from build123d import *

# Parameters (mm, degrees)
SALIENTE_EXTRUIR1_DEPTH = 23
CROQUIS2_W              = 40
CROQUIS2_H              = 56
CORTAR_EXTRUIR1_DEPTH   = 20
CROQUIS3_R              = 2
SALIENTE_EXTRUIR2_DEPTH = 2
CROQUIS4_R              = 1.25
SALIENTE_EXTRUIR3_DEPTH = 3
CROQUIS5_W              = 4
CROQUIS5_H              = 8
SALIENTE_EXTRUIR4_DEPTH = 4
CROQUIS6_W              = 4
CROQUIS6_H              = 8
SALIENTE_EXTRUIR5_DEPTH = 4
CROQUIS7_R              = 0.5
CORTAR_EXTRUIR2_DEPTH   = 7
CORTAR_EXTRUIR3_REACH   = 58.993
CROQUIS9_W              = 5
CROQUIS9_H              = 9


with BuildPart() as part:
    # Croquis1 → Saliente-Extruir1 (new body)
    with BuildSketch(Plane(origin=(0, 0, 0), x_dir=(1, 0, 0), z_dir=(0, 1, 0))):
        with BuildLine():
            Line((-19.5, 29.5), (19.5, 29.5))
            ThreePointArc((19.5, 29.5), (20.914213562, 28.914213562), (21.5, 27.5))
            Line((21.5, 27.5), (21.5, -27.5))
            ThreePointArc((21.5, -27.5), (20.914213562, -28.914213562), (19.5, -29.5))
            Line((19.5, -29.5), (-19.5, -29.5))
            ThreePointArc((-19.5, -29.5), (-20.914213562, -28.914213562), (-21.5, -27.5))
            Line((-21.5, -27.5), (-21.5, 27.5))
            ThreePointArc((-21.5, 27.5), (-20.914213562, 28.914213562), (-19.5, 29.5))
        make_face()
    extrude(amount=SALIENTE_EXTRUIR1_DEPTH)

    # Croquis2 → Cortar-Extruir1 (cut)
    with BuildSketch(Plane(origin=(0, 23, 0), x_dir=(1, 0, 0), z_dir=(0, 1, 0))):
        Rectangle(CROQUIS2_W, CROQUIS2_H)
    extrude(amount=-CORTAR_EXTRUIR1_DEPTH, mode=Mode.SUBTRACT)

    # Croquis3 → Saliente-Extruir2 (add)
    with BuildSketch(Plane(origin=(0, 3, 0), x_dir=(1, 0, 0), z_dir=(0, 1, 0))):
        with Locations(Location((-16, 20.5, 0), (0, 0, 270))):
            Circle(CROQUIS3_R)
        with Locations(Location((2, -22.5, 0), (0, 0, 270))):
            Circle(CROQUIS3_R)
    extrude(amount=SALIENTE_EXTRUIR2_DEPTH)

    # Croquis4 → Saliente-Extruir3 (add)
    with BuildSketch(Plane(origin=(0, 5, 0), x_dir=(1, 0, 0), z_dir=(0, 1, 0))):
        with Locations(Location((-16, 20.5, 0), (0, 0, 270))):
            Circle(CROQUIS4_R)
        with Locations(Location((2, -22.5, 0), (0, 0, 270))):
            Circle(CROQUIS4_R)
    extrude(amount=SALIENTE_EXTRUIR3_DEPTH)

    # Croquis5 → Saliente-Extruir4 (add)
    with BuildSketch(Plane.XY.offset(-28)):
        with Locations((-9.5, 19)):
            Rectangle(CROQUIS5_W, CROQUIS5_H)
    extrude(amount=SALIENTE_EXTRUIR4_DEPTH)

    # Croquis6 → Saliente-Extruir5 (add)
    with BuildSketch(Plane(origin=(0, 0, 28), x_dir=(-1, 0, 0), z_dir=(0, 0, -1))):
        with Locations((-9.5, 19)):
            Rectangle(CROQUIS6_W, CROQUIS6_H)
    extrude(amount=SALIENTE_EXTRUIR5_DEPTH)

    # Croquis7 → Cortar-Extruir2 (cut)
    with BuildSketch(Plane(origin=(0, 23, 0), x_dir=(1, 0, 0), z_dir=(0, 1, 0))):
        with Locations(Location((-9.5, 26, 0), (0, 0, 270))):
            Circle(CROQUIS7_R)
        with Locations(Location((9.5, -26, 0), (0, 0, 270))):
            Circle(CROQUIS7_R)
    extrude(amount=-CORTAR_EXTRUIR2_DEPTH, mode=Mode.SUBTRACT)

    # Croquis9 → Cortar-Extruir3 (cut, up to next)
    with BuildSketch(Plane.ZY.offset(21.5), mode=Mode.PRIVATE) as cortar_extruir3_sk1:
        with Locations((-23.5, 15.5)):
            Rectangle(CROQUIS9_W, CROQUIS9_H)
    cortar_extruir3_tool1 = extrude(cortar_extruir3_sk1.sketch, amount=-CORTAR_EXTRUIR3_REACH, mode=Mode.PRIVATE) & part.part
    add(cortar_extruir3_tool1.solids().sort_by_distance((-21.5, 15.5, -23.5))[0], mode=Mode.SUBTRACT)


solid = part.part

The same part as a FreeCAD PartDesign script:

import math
import FreeCAD as App
import Part
import Sketcher
Q = App.Units.Quantity


def add_polygon(sketch, points):
    """Adds a closed chain of lines whose ends are joined by coincident constraints."""
    first, n = sketch.GeometryCount, len(points)
    for a, b in zip(points, points[1:] + points[:1]):
        sketch.addGeometry(Part.LineSegment(App.Vector(*a, 0), App.Vector(*b, 0)), False)
    for i in range(n):
        sketch.addConstraint(Sketcher.Constraint("Coincident", first + i, 2, first + (i + 1) % n, 1))

doc = App.newDocument("Part")
body = doc.addObject("PartDesign::Body", "Body")

sketch1 = body.newObject("Sketcher::SketchObject", "Sketch")
sketch1.AttachmentSupport = (doc.getObject("XZ_Plane"), [""])
sketch1.MapMode = "FlatFace"
sketch1.addGeometry([
    Part.LineSegment(App.Vector(19.5, -29.5, 0), App.Vector(-19.5, -29.5, 0)),
    Part.ArcOfCircle(Part.Circle(App.Vector(-19.5, -27.5, 0), App.Vector(0, 0, 1), 2), math.radians(-180), math.radians(-90)),
    Part.LineSegment(App.Vector(-21.5, -27.5, 0), App.Vector(-21.5, 27.5, 0)),
    Part.ArcOfCircle(Part.Circle(App.Vector(-19.5, 27.5, 0), App.Vector(0, 0, 1), 2), math.radians(90), math.radians(180)),
    Part.LineSegment(App.Vector(-19.5, 29.5, 0), App.Vector(19.5, 29.5, 0)),
    Part.ArcOfCircle(Part.Circle(App.Vector(19.5, 27.5, 0), App.Vector(0, 0, 1), 2), math.radians(0), math.radians(90)),
    Part.LineSegment(App.Vector(21.5, 27.5, 0), App.Vector(21.5, -27.5, 0)),
    Part.ArcOfCircle(Part.Circle(App.Vector(19.5, -27.5, 0), App.Vector(0, 0, 1), 2), math.radians(-90), math.radians(0)),
], False)
sketch1.addConstraint([
    Sketcher.Constraint("Tangent", 0, 2, 1, 2),
    Sketcher.Constraint("Tangent", 1, 1, 2, 1),
    Sketcher.Constraint("Tangent", 2, 2, 3, 2),
    Sketcher.Constraint("Tangent", 3, 1, 4, 1),
    Sketcher.Constraint("Tangent", 4, 2, 5, 2),
    Sketcher.Constraint("Tangent", 5, 1, 6, 1),
    Sketcher.Constraint("Tangent", 6, 2, 7, 2),
    Sketcher.Constraint("Tangent", 7, 1, 0, 1),
    Sketcher.Constraint("Horizontal", 0),
    Sketcher.Constraint("Vertical", 2),
    Sketcher.Constraint("Horizontal", 4),
    Sketcher.Constraint("Vertical", 6),
    Sketcher.Constraint("Equal", 1, 3),
    Sketcher.Constraint("Equal", 3, 5),
    Sketcher.Constraint("Equal", 5, 7),
    Sketcher.Constraint("Symmetric", 1, 3, 5, 3, -1, 1),
    Sketcher.Constraint("Radius", 1, Q("2 mm")),
    Sketcher.Constraint("DistanceX", 0, 2, 0, 1, Q("39 mm")),
    Sketcher.Constraint("DistanceY", 2, 1, 2, 2, Q("55 mm")),
])
pad1 = body.newObject("PartDesign::Pad", "Pad")
pad1.Profile = sketch1
pad1.Length = 23
pad1.Reversed = True

sketch2 = body.newObject("Sketcher::SketchObject", "Sketch001")
sketch2.AttachmentSupport = (doc.getObject("XZ_Plane"), [""])
sketch2.MapMode = "FlatFace"
sketch2.AttachmentOffset = App.Placement(App.Vector(0, 0, -23), App.Rotation())
add_polygon(sketch2, [(-20, -28), (-20, 28), (20, 28), (20, -28)])
sketch2.addConstraint([
    Sketcher.Constraint("Vertical", 0),
    Sketcher.Constraint("Horizontal", 1),
    Sketcher.Constraint("Vertical", 2),
    Sketcher.Constraint("Horizontal", 3),
    Sketcher.Constraint("Symmetric", 0, 2, 2, 2, -1, 1),
    Sketcher.Constraint("DistanceX", 1, 1, 1, 2, Q("40 mm")),
    Sketcher.Constraint("DistanceY", 0, 1, 0, 2, Q("56 mm")),
])
pocket1 = body.newObject("PartDesign::Pocket", "Pocket")
pocket1.Profile = sketch2
pocket1.Length = 20
pocket1.Reversed = True

sketch3 = body.newObject("Sketcher::SketchObject", "Sketch002")
sketch3.AttachmentSupport = (doc.getObject("XZ_Plane"), [""])
sketch3.MapMode = "FlatFace"
sketch3.AttachmentOffset = App.Placement(App.Vector(0, 0, -3), App.Rotation())
sketch3.addGeometry([
    Part.Circle(App.Vector(-16, -20.5, 0), App.Vector(0, 0, 1), 2),
    Part.Circle(App.Vector(2, 22.5, 0), App.Vector(0, 0, 1), 2),
], False)
sketch3.addConstraint([
    Sketcher.Constraint("Equal", 0, 1),
    Sketcher.Constraint("Diameter", 0, Q("4 mm")),
    Sketcher.Constraint("DistanceX", 0, 3, -1, 1, Q("16 mm")),
    Sketcher.Constraint("DistanceX", -1, 1, 1, 3, Q("2 mm")),
    Sketcher.Constraint("DistanceY", 0, 3, 1, 3, Q("43 mm")),
    Sketcher.Constraint("DistanceY", 0, 3, -1, 1, Q("20.5 mm")),
])
pad2 = body.newObject("PartDesign::Pad", "Pad001")
pad2.Profile = sketch3
pad2.Length = 2
pad2.Reversed = True

sketch4 = body.newObject("Sketcher::SketchObject", "Sketch003")
sketch4.AttachmentSupport = (doc.getObject("XZ_Plane"), [""])
sketch4.MapMode = "FlatFace"
sketch4.AttachmentOffset = App.Placement(App.Vector(0, 0, -5), App.Rotation())
sketch4.addGeometry([
    Part.Circle(App.Vector(-16, -20.5, 0), App.Vector(0, 0, 1), 1.2),
    Part.Circle(App.Vector(2, 22.5, 0), App.Vector(0, 0, 1), 1.2),
], False)
sketch4.addConstraint([
    Sketcher.Constraint("Equal", 0, 1),
    Sketcher.Constraint("Diameter", 0, Q("2.5 mm")),
    Sketcher.Constraint("DistanceX", 0, 3, -1, 1, Q("16 mm")),
    Sketcher.Constraint("DistanceX", -1, 1, 1, 3, Q("2 mm")),
    Sketcher.Constraint("DistanceY", 0, 3, 1, 3, Q("43 mm")),
    Sketcher.Constraint("DistanceY", 0, 3, -1, 1, Q("20.5 mm")),
])
pad3 = body.newObject("PartDesign::Pad", "Pad002")
pad3.Profile = sketch4
pad3.Length = 3
pad3.Reversed = True

sketch5 = body.newObject("Sketcher::SketchObject", "Sketch004")
sketch5.AttachmentSupport = (doc.getObject("XY_Plane"), [""])
sketch5.MapMode = "FlatFace"
sketch5.AttachmentOffset = App.Placement(App.Vector(0, 0, -28), App.Rotation())
add_polygon(sketch5, [(-11.5, 23), (-11.5, 15), (-7.5, 15), (-7.5, 23)])
sketch5.addConstraint([
    Sketcher.Constraint("Vertical", 0),
    Sketcher.Constraint("Horizontal", 1),
    Sketcher.Constraint("Vertical", 2),
    Sketcher.Constraint("Horizontal", 3),
    Sketcher.Constraint("DistanceX", 1, 1, 1, 2, Q("4 mm")),
    Sketcher.Constraint("DistanceY", 0, 2, 0, 1, Q("8 mm")),
    Sketcher.Constraint("DistanceY", -1, 1, 0, 2, Q("15 mm")),
    Sketcher.Constraint("DistanceX", 0, 2, -1, 1, Q("11.5 mm")),
])
pad4 = body.newObject("PartDesign::Pad", "Pad003")
pad4.Profile = sketch5
pad4.Length = 4

sketch6 = body.newObject("Sketcher::SketchObject", "Sketch005")
sketch6.AttachmentSupport = (doc.getObject("XY_Plane"), [""])
sketch6.MapMode = "FlatFace"
sketch6.AttachmentOffset = App.Placement(App.Vector(0, 0, 28), App.Rotation())
add_polygon(sketch6, [(11.5, 23), (11.5, 15), (7.5, 15), (7.5, 23)])
sketch6.addConstraint([
    Sketcher.Constraint("Vertical", 0),
    Sketcher.Constraint("Horizontal", 1),
    Sketcher.Constraint("Vertical", 2),
    Sketcher.Constraint("Horizontal", 3),
    Sketcher.Constraint("DistanceX", 1, 2, 1, 1, Q("4 mm")),
    Sketcher.Constraint("DistanceY", 0, 2, 0, 1, Q("8 mm")),
    Sketcher.Constraint("DistanceY", -1, 1, 0, 2, Q("15 mm")),
    Sketcher.Constraint("DistanceX", -1, 1, 0, 2, Q("11.5 mm")),
])
pad5 = body.newObject("PartDesign::Pad", "Pad004")
pad5.Profile = sketch6
pad5.Length = 4
pad5.Reversed = True

sketch7 = body.newObject("Sketcher::SketchObject", "Sketch006")
sketch7.AttachmentSupport = (doc.getObject("XZ_Plane"), [""])
sketch7.MapMode = "FlatFace"
sketch7.AttachmentOffset = App.Placement(App.Vector(0, 0, -23), App.Rotation())
sketch7.addGeometry([
    Part.Circle(App.Vector(-9.5, -26, 0), App.Vector(0, 0, 1), 0.5),
    Part.Circle(App.Vector(9.5, 26, 0), App.Vector(0, 0, 1), 0.5),
], False)
sketch7.addConstraint([
    Sketcher.Constraint("Equal", 0, 1),
    Sketcher.Constraint("Symmetric", 0, 3, 1, 3, -1, 1),
    Sketcher.Constraint("Diameter", 0, Q("1 mm")),
    Sketcher.Constraint("DistanceY", 0, 3, -1, 1, Q("26 mm")),
    Sketcher.Constraint("DistanceX", 0, 3, 1, 3, Q("19 mm")),
])
pocket2 = body.newObject("PartDesign::Pocket", "Pocket001")
pocket2.Profile = sketch7
pocket2.Length = 7
pocket2.Reversed = True

sketch8 = body.newObject("Sketcher::SketchObject", "Sketch007")
sketch8.AttachmentSupport = (doc.getObject("YZ_Plane"), [""])
sketch8.MapMode = "FlatFace"
sketch8.AttachmentOffset = App.Placement(App.Vector(0, 0, -21.5), App.Rotation())
add_polygon(sketch8, [(20, -26), (11, -26), (11, -21), (20, -21)])
sketch8.addConstraint([
    Sketcher.Constraint("Horizontal", 0),
    Sketcher.Constraint("Vertical", 1),
    Sketcher.Constraint("Horizontal", 2),
    Sketcher.Constraint("Vertical", 3),
    Sketcher.Constraint("DistanceX", 0, 2, 0, 1, Q("9 mm")),
    Sketcher.Constraint("DistanceY", 1, 1, 1, 2, Q("5 mm")),
    Sketcher.Constraint("DistanceX", -1, 1, 0, 2, Q("11 mm")),
    Sketcher.Constraint("DistanceY", 0, 2, -1, 1, Q("26 mm")),
])
pocket3 = body.newObject("PartDesign::Pocket", "Pocket002")
pocket3.Profile = sketch8
pocket3.Type = "UpToFirst"
pocket3.Reversed = True

doc.recompute()
